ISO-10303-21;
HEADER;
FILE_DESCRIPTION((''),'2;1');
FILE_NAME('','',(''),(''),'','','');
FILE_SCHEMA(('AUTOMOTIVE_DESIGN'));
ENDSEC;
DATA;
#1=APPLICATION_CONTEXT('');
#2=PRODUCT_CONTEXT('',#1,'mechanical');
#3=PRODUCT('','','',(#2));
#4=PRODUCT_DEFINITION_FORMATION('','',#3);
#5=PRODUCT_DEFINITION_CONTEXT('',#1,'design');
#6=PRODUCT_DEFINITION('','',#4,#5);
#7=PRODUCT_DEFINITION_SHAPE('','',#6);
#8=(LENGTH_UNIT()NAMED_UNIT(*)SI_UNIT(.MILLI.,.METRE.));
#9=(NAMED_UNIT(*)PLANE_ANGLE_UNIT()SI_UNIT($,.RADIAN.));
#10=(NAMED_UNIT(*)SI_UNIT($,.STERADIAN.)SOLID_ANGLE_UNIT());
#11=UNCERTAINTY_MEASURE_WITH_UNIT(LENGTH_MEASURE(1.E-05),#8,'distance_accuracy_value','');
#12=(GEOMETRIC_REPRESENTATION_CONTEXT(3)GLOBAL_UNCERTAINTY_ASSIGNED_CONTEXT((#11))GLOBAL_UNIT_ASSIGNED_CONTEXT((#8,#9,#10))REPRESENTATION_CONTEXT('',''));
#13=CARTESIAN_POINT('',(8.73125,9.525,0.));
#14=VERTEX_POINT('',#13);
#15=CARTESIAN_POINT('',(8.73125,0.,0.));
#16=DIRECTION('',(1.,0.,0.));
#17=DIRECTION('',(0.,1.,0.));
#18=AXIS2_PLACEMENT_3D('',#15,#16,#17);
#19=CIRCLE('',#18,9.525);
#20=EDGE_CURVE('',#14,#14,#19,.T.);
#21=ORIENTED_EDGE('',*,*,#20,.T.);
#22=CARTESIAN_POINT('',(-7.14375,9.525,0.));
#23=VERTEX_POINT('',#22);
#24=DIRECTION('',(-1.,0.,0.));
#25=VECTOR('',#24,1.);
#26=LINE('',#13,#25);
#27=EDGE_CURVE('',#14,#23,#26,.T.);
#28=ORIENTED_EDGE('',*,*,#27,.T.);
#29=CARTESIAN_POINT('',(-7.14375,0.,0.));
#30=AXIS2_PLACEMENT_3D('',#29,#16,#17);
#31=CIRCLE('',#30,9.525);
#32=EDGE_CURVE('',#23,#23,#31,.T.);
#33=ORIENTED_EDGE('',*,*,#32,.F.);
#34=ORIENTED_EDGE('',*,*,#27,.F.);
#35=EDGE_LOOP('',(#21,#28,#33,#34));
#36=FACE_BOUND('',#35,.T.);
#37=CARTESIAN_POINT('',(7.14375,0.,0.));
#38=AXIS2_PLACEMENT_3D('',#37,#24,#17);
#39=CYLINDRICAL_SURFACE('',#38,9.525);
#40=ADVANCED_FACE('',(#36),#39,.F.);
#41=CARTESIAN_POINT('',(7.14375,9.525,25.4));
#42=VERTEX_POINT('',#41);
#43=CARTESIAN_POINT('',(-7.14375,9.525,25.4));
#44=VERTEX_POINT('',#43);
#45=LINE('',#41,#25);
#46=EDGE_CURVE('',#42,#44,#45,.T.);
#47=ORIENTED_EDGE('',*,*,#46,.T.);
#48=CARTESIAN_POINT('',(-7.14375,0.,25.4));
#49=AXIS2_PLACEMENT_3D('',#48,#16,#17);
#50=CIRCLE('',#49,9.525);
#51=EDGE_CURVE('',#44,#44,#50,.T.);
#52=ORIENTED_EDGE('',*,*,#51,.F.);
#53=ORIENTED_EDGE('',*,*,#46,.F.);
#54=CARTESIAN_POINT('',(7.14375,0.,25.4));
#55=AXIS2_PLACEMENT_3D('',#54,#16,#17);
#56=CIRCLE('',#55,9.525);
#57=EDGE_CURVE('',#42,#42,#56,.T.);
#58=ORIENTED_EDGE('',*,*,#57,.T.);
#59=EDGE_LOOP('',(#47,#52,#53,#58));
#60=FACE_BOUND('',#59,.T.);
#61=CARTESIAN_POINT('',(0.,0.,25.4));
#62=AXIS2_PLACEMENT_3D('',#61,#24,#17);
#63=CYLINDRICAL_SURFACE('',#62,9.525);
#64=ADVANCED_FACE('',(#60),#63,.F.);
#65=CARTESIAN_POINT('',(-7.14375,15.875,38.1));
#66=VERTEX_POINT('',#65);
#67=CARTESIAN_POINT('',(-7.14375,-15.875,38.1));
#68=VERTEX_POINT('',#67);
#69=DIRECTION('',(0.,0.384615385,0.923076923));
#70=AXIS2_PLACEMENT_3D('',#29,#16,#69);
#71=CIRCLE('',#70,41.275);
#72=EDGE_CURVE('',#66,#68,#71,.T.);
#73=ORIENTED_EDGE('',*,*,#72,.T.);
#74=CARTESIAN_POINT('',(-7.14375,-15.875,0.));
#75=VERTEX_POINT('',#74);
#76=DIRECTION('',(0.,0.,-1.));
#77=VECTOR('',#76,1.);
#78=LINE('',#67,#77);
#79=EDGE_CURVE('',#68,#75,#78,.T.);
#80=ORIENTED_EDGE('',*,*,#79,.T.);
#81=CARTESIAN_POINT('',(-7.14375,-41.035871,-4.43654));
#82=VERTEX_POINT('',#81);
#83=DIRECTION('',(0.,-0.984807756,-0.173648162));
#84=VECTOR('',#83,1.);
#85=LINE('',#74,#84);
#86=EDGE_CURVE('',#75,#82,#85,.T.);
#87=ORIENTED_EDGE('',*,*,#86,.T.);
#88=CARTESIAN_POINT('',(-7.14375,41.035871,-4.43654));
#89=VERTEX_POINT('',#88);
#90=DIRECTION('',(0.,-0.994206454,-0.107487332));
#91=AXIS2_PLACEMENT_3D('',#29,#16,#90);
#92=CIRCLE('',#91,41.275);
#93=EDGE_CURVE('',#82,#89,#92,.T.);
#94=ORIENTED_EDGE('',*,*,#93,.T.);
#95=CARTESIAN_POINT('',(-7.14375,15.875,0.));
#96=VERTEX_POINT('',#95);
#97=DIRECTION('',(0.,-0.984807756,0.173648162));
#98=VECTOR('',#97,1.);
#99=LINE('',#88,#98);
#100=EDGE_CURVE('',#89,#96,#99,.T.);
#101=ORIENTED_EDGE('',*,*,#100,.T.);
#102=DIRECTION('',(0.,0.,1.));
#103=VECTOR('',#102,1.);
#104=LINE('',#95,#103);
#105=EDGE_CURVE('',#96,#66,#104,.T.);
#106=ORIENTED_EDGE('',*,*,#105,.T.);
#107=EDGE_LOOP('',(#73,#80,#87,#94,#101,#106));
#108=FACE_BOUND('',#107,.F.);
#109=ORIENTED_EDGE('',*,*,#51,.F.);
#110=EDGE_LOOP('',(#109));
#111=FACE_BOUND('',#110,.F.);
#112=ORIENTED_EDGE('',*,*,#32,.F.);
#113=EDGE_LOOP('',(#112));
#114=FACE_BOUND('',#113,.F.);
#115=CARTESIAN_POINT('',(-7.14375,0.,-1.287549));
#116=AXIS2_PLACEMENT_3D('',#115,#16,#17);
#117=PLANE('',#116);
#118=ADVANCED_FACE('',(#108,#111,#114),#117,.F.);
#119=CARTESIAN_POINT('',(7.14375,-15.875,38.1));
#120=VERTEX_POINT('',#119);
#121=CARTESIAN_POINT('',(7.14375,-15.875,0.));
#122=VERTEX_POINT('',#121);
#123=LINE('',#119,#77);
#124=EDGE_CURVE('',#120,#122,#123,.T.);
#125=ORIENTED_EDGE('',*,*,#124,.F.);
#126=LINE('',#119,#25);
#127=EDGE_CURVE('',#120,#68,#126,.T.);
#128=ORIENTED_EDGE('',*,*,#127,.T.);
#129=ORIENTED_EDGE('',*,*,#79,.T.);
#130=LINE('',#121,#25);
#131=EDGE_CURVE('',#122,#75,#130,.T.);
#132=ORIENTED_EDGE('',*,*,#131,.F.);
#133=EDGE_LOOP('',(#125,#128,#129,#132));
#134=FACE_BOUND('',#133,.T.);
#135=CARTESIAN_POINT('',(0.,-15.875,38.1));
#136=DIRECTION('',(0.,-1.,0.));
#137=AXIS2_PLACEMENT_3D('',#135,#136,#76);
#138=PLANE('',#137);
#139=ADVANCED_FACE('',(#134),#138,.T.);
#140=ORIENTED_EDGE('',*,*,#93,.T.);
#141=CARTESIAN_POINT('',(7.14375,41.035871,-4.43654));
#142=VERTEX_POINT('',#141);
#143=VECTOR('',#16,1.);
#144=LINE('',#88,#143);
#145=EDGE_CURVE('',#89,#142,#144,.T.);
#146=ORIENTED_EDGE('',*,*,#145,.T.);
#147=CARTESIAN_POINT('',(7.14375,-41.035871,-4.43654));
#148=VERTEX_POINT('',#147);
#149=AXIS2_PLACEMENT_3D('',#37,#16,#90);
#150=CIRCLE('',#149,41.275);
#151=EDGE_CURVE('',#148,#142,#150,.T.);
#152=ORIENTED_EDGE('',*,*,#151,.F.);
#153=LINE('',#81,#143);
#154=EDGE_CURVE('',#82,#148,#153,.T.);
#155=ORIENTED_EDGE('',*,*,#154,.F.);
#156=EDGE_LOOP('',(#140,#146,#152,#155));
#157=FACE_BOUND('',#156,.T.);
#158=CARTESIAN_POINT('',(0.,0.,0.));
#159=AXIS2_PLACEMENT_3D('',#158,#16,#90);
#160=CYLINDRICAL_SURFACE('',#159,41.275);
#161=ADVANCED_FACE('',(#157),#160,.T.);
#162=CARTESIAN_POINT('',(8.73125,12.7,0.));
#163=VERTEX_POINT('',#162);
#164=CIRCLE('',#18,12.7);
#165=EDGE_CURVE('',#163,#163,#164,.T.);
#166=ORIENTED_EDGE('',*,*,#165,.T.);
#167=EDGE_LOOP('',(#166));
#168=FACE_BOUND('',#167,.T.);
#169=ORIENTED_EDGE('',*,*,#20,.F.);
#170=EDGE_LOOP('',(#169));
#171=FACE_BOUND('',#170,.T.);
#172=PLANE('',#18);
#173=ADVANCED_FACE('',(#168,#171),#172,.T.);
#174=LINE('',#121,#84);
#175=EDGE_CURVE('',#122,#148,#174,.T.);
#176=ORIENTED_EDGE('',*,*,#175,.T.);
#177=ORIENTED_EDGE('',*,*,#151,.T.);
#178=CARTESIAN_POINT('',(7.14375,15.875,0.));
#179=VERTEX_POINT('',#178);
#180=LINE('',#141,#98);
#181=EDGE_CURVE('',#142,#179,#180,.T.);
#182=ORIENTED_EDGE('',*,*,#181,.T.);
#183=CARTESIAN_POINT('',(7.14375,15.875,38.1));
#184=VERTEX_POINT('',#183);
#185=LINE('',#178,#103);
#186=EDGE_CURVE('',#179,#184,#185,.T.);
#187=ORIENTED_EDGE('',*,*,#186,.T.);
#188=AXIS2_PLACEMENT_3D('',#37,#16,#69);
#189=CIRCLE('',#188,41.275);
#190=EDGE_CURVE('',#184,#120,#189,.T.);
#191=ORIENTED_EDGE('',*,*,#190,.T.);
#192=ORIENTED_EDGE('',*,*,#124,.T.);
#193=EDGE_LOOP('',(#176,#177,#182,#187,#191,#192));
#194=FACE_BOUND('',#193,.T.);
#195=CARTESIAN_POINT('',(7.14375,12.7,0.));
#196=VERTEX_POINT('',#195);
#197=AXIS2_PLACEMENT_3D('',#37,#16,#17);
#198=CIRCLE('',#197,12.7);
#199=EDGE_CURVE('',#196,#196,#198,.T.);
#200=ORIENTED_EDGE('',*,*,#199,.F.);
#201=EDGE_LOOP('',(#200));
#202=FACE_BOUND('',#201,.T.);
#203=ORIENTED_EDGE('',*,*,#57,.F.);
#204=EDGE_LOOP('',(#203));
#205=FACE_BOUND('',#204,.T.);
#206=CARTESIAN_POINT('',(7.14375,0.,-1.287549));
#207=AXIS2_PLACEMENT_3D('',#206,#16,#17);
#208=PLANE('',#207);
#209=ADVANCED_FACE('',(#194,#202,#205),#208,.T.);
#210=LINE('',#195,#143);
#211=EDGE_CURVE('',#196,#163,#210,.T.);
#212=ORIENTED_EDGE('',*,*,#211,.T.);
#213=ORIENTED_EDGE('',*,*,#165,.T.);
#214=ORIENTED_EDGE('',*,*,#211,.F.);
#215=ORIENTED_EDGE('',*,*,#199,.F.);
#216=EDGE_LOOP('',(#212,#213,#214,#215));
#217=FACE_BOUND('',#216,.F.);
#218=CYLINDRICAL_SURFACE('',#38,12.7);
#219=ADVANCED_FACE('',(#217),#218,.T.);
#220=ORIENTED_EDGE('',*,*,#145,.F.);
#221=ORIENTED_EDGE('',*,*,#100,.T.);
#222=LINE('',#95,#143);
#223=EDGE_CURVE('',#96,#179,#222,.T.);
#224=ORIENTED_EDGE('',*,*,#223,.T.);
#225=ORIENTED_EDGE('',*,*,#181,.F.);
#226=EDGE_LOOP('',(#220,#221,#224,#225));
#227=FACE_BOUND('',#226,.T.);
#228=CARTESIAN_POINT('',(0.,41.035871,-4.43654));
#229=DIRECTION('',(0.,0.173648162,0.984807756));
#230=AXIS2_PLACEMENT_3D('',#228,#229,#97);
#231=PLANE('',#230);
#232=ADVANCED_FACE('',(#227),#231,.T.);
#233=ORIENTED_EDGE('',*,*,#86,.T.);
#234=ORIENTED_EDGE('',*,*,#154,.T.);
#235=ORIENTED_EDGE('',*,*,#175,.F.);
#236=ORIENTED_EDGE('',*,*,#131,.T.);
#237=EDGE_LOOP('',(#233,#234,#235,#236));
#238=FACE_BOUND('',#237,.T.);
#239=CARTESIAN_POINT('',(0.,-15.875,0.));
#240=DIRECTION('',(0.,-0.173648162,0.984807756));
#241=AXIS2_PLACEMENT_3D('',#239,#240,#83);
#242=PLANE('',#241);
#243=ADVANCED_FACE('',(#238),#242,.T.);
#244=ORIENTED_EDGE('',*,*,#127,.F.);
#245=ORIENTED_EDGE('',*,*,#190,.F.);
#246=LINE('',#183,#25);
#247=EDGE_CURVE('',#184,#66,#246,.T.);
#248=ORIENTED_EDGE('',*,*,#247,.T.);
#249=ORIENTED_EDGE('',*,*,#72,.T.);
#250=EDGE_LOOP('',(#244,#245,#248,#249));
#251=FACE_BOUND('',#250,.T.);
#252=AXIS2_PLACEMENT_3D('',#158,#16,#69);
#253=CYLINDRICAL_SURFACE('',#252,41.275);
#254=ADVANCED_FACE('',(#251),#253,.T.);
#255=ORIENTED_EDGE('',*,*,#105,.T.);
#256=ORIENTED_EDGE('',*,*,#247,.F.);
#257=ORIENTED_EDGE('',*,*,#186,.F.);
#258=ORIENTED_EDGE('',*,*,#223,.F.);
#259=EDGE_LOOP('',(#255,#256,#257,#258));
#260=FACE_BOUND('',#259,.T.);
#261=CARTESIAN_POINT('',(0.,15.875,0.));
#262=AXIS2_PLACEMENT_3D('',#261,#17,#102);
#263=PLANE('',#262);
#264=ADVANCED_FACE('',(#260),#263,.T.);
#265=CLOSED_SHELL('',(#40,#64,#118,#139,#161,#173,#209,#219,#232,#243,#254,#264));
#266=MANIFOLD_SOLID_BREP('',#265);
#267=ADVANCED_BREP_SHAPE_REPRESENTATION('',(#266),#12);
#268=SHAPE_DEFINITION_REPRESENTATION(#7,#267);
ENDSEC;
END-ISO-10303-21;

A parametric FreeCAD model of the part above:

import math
import FreeCAD as App
import Part
import Sketcher
Q = App.Units.Quantity

doc = App.newDocument("Part")
body = doc.addObject("PartDesign::Body", "Body")

# Sketch on YZ plane
sketch1 = body.newObject("Sketcher::SketchObject", "Sketch")
sketch1.AttachmentSupport = (doc.getObject("YZ_Plane"), [""])
sketch1.MapMode = "FlatFace"
sketch1.addGeometry([
    Part.LineSegment(App.Vector(-15.875, 0, 0), App.Vector(-41.035871, -4.43654, 0)),  # 0
    Part.ArcOfCircle(Part.Circle(App.Vector(0, 0, 0), App.Vector(0, 0, 1), 41.275), math.radians(-173.829509), math.radians(-6.170491)),  # 1
    Part.LineSegment(App.Vector(41.035871, -4.43654, 0), App.Vector(15.875, 0, 0)),  # 2
    Part.LineSegment(App.Vector(15.875, 0, 0), App.Vector(15.875, 38.1, 0)),  # 3
    Part.ArcOfCircle(Part.Circle(App.Vector(0, 0, 0), App.Vector(0, 0, 1), 41.275), math.radians(67.380135), math.radians(112.619865)),  # 4
    Part.LineSegment(App.Vector(-15.875, 38.1, 0), App.Vector(-15.875, 0, 0)),  # 5
    Part.Circle(App.Vector(0, 0, 0), App.Vector(0, 0, 1), 9.525),  # 6
    Part.Circle(App.Vector(0, 25.4, 0), App.Vector(0, 0, 1), 9.525),  # 7
], False)
sketch1.addConstraint([
    Sketcher.Constraint("Coincident", 0, 2, 1, 1),
    Sketcher.Constraint("Coincident", 1, 2, 2, 1),
    Sketcher.Constraint("Coincident", 2, 2, 3, 1),
    Sketcher.Constraint("Coincident", 3, 2, 4, 1),
    Sketcher.Constraint("Coincident", 4, 2, 5, 1),
    Sketcher.Constraint("Coincident", 5, 2, 0, 1),
    Sketcher.Constraint("Vertical", 3),
    Sketcher.Constraint("Vertical", 5),
    Sketcher.Constraint("Coincident", 1, 3, -1, 1),
    Sketcher.Constraint("Coincident", 4, 3, -1, 1),
    Sketcher.Constraint("Coincident", 6, 3, -1, 1),
    Sketcher.Constraint("Equal", 1, 4),
    Sketcher.Constraint("Equal", 6, 7),
    Sketcher.Constraint("Symmetric", 2, 2, 5, 2, -1, 1),
    Sketcher.Constraint("PointOnObject", 7, 3, -2),
    Sketcher.Constraint("PointOnObject", 2, 2, -1),
    Sketcher.Constraint("Horizontal", 0, 2, 1, 2),
    Sketcher.Constraint("Diameter", 6, Q("0.75 in")),
    Sketcher.Constraint("DistanceY", 3, 1, 3, 2, Q("1.5 in")),
    Sketcher.Constraint("DistanceY", -1, 1, 7, 3, Q("1 in")),
    Sketcher.Constraint("Angle", 0, Q("-170.000001 deg")),
    Sketcher.Constraint("Radius", 1, Q("1.625 in")),
])
pad1 = body.newObject("PartDesign::Pad", "Pad")
pad1.Profile = sketch1
pad1.Length = Q("0.5625 in")
pad1.Midplane = True

# Sketch on YZ plane
sketch2 = body.newObject("Sketcher::SketchObject", "Sketch001")
sketch2.AttachmentSupport = (doc.getObject("YZ_Plane"), [""])
sketch2.MapMode = "FlatFace"
sketch2.AttachmentOffset = App.Placement(App.Vector(0, 0, 0.28125 * 25.4), App.Rotation())
sketch2.addGeometry([
    Part.Circle(App.Vector(0, 0, 0), App.Vector(0, 0, 1), 12.7),
    Part.Circle(App.Vector(0, 0, 0), App.Vector(0, 0, 1), 9.525),
], False)
sketch2.addConstraint([
    Sketcher.Constraint("Coincident", 0, 3, -1, 1),
    Sketcher.Constraint("Coincident", 1, 3, -1, 1),
    Sketcher.Constraint("Diameter", 0, Q("1 in")),
    Sketcher.Constraint("Diameter", 1, Q("0.75 in")),
])
pad2 = body.newObject("PartDesign::Pad", "Pad001")
pad2.Profile = sketch2
pad2.Length = Q("0.0625 in")

doc.recompute()
